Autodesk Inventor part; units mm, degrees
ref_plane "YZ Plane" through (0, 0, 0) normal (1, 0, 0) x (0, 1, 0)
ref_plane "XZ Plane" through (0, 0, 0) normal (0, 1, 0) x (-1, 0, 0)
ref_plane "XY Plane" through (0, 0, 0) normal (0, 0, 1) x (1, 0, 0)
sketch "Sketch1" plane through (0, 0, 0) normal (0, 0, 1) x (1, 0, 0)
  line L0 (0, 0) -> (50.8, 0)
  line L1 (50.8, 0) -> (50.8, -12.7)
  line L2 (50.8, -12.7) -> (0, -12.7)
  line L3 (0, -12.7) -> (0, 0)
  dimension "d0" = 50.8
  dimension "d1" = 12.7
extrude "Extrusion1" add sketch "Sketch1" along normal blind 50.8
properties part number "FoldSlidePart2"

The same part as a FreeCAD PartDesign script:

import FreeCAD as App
import Part
import Sketcher
from FreeCAD import Vector
Q = App.Units.Quantity

doc = App.newDocument("Part")
body = doc.addObject("PartDesign::Body", "Body")

sketch1 = doc.addObject("Sketcher::SketchObject", "Sketch")
body.addObject(sketch1)
sketch1.AttachmentSupport = (doc.XY_Plane, [""])
sketch1.MapMode = "FlatFace"
sketch1.addGeometry(Part.LineSegment(Vector(51, 0, 0), Vector(0, 0, 0)), False)
sketch1.addGeometry(Part.LineSegment(Vector(0, 0, 0), Vector(0, -13, 0)), False)
sketch1.addGeometry(Part.LineSegment(Vector(0, -13, 0), Vector(51, -13, 0)), False)
sketch1.addGeometry(Part.LineSegment(Vector(51, -13, 0), Vector(51, 0, 0)), False)
sketch1.addConstraint(Sketcher.Constraint("Coincident", 0, 2, 1, 1))
sketch1.addConstraint(Sketcher.Constraint("Coincident", 1, 2, 2, 1))
sketch1.addConstraint(Sketcher.Constraint("Coincident", 2, 2, 3, 1))
sketch1.addConstraint(Sketcher.Constraint("Coincident", 3, 2, 0, 1))
sketch1.addConstraint(Sketcher.Constraint("Horizontal", 0))
sketch1.addConstraint(Sketcher.Constraint("Vertical", 1))
sketch1.addConstraint(Sketcher.Constraint("Horizontal", 2))
sketch1.addConstraint(Sketcher.Constraint("Vertical", 3))
sketch1.addConstraint(Sketcher.Constraint("Coincident", 0, 2, -1, 1))
sketch1.addConstraint(Sketcher.Constraint("DistanceX", 0, 2, 0, 1, Q("2 in")))
sketch1.addConstraint(Sketcher.Constraint("DistanceY", 1, 2, 1, 1, Q("0.5 in")))
pad1 = doc.addObject("PartDesign::Pad", "Pad")
body.addObject(pad1)
pad1.Profile = sketch1
pad1.Length = Q("2 in")

doc.recompute()
